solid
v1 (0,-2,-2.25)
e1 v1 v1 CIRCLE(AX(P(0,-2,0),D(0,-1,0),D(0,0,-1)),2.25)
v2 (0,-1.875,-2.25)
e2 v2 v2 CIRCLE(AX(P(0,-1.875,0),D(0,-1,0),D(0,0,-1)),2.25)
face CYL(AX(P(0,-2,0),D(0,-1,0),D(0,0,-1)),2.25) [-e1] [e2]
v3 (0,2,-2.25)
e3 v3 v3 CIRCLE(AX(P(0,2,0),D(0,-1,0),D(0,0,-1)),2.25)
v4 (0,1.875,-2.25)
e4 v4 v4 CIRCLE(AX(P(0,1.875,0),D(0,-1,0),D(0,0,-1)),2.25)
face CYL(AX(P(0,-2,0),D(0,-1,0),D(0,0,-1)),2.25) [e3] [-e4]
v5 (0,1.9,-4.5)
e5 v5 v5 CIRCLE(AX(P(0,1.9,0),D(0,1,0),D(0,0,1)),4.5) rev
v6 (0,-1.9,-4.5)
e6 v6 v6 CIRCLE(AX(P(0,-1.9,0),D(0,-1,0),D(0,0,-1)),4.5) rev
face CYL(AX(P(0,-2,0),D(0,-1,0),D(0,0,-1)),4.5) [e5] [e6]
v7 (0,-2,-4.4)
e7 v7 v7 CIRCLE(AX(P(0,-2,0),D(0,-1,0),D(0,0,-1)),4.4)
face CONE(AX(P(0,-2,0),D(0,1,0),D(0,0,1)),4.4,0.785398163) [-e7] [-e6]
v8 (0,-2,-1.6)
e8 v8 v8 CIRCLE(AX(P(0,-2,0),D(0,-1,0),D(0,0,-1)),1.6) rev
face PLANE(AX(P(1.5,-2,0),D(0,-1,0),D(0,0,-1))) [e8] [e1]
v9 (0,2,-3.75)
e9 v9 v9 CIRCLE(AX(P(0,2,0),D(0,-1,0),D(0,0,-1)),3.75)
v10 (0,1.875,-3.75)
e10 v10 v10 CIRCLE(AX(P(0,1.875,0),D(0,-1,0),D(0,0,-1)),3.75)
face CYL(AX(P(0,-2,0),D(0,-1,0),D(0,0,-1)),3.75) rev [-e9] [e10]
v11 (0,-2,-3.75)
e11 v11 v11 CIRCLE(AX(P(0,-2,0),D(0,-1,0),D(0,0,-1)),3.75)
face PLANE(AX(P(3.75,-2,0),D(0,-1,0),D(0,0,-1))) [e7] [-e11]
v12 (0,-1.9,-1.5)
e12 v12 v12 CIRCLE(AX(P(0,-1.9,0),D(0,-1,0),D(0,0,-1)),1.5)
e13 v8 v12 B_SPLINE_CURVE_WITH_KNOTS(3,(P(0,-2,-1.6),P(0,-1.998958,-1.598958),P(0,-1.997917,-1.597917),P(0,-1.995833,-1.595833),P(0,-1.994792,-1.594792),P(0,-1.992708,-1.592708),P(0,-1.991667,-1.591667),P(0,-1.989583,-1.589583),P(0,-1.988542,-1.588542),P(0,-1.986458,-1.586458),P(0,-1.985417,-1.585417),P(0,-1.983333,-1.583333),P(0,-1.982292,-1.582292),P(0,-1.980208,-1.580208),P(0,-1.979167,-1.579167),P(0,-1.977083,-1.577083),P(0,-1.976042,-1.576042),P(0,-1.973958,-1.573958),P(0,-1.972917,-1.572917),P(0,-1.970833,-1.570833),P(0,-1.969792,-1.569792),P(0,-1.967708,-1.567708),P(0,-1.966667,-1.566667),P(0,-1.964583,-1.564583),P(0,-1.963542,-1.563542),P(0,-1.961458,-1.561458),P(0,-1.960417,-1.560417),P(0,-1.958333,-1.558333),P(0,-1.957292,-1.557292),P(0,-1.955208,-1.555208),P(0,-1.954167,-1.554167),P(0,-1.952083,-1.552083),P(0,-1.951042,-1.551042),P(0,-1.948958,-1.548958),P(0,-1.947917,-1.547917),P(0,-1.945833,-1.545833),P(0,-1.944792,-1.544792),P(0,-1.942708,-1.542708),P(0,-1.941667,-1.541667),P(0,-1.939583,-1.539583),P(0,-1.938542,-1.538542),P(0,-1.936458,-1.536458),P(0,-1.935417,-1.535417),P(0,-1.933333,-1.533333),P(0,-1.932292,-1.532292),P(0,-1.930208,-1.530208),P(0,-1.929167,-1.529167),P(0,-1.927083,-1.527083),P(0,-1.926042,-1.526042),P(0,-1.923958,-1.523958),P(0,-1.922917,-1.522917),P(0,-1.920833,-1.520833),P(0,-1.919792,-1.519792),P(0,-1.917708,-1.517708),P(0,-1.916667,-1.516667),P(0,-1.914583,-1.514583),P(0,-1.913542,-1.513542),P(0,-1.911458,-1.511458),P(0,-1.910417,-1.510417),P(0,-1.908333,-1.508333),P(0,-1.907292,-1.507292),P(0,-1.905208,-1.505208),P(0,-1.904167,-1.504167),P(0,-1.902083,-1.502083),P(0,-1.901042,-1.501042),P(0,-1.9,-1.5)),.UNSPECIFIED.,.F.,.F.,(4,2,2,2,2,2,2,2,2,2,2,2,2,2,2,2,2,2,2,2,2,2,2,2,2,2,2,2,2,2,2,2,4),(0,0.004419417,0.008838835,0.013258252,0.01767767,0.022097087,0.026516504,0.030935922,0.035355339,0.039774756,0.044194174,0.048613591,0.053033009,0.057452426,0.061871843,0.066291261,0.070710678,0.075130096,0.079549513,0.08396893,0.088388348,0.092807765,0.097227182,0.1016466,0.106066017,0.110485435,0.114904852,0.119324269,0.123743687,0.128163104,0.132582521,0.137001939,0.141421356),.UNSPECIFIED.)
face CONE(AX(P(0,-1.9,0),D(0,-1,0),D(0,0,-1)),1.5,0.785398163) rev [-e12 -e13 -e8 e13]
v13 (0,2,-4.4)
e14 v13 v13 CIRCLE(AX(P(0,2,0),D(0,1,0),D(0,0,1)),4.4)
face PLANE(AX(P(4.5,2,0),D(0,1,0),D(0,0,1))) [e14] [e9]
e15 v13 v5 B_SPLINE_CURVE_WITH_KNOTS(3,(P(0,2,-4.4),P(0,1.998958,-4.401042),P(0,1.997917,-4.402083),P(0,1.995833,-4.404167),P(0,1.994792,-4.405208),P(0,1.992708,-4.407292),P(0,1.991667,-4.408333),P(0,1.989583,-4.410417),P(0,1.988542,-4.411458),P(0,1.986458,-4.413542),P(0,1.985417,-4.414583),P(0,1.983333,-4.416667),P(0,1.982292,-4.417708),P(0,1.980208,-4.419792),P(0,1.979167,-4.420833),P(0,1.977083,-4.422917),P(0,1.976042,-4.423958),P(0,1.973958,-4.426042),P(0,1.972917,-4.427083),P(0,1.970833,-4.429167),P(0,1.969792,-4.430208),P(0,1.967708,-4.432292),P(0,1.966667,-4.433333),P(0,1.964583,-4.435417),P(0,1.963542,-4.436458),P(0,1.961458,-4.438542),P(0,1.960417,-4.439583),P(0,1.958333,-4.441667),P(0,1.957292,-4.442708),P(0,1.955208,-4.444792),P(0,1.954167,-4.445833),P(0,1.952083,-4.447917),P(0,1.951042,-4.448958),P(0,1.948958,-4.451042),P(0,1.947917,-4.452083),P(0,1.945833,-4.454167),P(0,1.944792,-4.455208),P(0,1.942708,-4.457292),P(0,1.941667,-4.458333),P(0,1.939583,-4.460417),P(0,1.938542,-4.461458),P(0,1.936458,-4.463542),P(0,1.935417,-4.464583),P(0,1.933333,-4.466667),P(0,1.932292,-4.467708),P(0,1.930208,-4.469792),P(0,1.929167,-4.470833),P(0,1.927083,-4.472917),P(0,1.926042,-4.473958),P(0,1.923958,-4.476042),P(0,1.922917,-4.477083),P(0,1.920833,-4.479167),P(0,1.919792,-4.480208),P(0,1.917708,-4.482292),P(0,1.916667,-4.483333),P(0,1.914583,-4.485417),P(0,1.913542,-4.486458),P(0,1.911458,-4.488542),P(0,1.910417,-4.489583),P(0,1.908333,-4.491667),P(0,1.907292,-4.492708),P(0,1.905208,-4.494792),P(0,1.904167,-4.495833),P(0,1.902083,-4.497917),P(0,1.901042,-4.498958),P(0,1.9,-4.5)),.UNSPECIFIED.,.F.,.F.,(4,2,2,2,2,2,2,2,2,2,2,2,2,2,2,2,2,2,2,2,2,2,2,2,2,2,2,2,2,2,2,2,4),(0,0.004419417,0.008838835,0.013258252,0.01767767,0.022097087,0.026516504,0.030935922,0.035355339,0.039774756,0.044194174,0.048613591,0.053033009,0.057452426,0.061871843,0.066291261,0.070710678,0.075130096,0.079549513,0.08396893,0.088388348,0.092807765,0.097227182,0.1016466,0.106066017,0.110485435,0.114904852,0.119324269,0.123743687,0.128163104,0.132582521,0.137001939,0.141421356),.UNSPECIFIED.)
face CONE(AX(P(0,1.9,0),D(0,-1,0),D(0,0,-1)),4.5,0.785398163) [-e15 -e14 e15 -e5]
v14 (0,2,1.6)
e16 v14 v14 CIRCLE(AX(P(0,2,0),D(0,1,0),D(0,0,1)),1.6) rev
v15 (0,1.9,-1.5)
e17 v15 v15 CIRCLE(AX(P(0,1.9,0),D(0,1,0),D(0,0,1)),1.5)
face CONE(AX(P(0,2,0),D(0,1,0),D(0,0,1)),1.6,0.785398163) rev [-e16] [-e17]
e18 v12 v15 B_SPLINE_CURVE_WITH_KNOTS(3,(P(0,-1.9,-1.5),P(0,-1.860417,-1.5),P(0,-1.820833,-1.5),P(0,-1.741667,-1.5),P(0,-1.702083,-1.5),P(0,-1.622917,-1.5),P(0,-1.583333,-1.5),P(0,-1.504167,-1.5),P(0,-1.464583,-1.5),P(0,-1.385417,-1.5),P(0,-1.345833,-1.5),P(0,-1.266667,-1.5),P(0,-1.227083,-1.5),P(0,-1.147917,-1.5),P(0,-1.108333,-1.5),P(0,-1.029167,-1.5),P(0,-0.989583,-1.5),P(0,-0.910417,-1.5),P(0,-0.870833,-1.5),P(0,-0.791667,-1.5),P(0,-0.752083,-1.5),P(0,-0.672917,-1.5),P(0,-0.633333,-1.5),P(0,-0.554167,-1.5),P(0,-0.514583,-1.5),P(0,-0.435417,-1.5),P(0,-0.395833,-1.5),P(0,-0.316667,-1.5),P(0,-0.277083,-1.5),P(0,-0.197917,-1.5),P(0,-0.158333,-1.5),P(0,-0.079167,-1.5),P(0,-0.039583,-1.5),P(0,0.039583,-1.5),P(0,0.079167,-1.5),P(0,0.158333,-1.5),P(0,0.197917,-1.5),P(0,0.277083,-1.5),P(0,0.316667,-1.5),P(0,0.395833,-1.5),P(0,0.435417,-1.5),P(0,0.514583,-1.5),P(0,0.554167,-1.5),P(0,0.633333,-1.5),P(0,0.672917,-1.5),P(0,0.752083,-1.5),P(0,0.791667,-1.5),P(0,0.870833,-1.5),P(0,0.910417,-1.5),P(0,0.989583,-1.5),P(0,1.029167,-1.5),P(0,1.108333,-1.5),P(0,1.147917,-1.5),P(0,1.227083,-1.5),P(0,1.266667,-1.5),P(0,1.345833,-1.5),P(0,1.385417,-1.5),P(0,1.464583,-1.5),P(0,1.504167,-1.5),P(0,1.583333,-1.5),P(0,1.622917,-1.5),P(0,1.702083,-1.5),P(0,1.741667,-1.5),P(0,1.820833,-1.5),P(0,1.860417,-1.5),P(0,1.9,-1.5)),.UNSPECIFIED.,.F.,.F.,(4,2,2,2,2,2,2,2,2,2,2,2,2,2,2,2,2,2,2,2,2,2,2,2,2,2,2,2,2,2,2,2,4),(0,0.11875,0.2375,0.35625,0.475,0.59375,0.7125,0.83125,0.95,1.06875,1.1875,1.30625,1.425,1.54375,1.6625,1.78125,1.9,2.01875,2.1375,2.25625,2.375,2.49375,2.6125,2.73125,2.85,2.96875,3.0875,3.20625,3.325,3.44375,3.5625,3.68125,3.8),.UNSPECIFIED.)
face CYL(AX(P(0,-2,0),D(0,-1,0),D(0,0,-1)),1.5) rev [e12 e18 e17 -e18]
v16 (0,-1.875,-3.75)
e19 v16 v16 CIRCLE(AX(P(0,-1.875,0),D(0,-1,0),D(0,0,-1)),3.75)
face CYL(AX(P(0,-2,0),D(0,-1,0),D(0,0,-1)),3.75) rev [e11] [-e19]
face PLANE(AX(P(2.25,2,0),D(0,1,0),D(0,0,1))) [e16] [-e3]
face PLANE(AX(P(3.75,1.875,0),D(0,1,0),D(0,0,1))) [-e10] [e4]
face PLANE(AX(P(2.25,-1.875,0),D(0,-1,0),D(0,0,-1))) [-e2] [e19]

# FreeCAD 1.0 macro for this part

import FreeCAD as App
import Part
import Sketcher


def edges_at(feature, points):
    """Names of the edges that pass closest to the given points."""
    edges = feature.Shape.Edges
    near = lambda p: min(range(len(edges)), key=lambda i: edges[i].distToShape(Part.Vertex(*p))[0])
    return sorted({f"Edge{near(p) + 1}" for p in points})

doc = App.newDocument("Part")
params = doc.addObject("Spreadsheet::Sheet", "Params")
for row, (alias, value) in enumerate([
    ("sketch1_height", "4 mm"),
    ("sketch1_width", "1.5 mm"),
    ("revolution_angle", "360 deg"),
    ("chamfer_size", "0.1 mm"),
], start=1):
    params.set(f"A{row}", alias)
    params.set(f"B{row}", "=" + value)
    params.setAlias(f"B{row}", alias)

body = doc.addObject("PartDesign::Body", "Body")

sketch1 = body.newObject("Sketcher::SketchObject", "Sketch")
sketch1.AttachmentSupport = (doc.getObject("XY_Plane"), [""])
sketch1.MapMode = "FlatFace"
sketch1.addGeometry([
    Part.LineSegment(App.Vector(1.5, 2, 0), App.Vector(1.5, -2, 0)),
    Part.LineSegment(App.Vector(1.5, -2, 0), App.Vector(2.25, -2, 0)),
    Part.LineSegment(App.Vector(2.25, -2, 0), App.Vector(2.25, -1.88, 0)),
    Part.LineSegment(App.Vector(2.25, -1.88, 0), App.Vector(3.75, -1.88, 0)),
    Part.LineSegment(App.Vector(3.75, -1.88, 0), App.Vector(3.75, -2, 0)),
    Part.LineSegment(App.Vector(3.75, -2, 0), App.Vector(4.5, -2, 0)),
    Part.LineSegment(App.Vector(4.5, -2, 0), App.Vector(4.5, 2, 0)),
    Part.LineSegment(App.Vector(4.5, 2, 0), App.Vector(3.75, 2, 0)),
    Part.LineSegment(App.Vector(3.75, 2, 0), App.Vector(3.75, 1.88, 0)),
    Part.LineSegment(App.Vector(3.75, 1.88, 0), App.Vector(2.25, 1.88, 0)),
    Part.LineSegment(App.Vector(2.25, 1.88, 0), App.Vector(2.25, 2, 0)),
    Part.LineSegment(App.Vector(2.25, 2, 0), App.Vector(1.5, 2, 0)),
], False)
sketch1.addConstraint([
    Sketcher.Constraint("Coincident", 0, 2, 1, 1),
    Sketcher.Constraint("Coincident", 1, 2, 2, 1),
    Sketcher.Constraint("Coincident", 2, 2, 3, 1),
    Sketcher.Constraint("Coincident", 3, 2, 4, 1),
    Sketcher.Constraint("Coincident", 4, 2, 5, 1),
    Sketcher.Constraint("Coincident", 5, 2, 6, 1),
    Sketcher.Constraint("Coincident", 6, 2, 7, 1),
    Sketcher.Constraint("Coincident", 7, 2, 8, 1),
    Sketcher.Constraint("Coincident", 8, 2, 9, 1),
    Sketcher.Constraint("Coincident", 9, 2, 10, 1),
    Sketcher.Constraint("Coincident", 10, 2, 11, 1),
    Sketcher.Constraint("Coincident", 11, 2, 0, 1),
    Sketcher.Constraint("Vertical", 0),
    Sketcher.Constraint("Horizontal", 1),
    Sketcher.Constraint("Vertical", 2),
    Sketcher.Constraint("Horizontal", 3),
    Sketcher.Constraint("Vertical", 4),
    Sketcher.Constraint("Horizontal", 5),
    Sketcher.Constraint("Vertical", 6),
    Sketcher.Constraint("Horizontal", 7),
    Sketcher.Constraint("Vertical", 8),
    Sketcher.Constraint("Horizontal", 9),
    Sketcher.Constraint("Vertical", 10),
    Sketcher.Constraint("Horizontal", 11),
    Sketcher.Constraint("Symmetric", 4, 2, 7, 2, -1),
    Sketcher.Constraint("Symmetric", 2, 2, 9, 2, -1),
    Sketcher.Constraint("Horizontal", 1, 2, 4, 2),
    Sketcher.Constraint("Horizontal", 7, 2, 10, 2),
    Sketcher.Constraint("Equal", 1, 5),
    Sketcher.Constraint("DistanceY", 0, 2, 0, 1, 4.0),
    Sketcher.Constraint("DistanceX", 3, 1, 3, 2, 1.5),
    Sketcher.Constraint("DistanceX", 0, 2, 5, 2, 3.0),
    Sketcher.Constraint("DistanceX", -1, 1, 0, 2, 1.5),
    Sketcher.Constraint("DistanceY", 2, 1, 2, 2, 0.125),
])
sketch1.setExpression("Constraints[29]", "Params.sketch1_height")
sketch1.setExpression("Constraints[30]", "Params.sketch1_width")
revolution = body.newObject("PartDesign::Revolution", "Revolution")
revolution.Profile = sketch1
revolution.ReferenceAxis = (sketch1, ["V_Axis"])
revolution.setExpression("Angle", "Params.revolution_angle")
doc.recompute()

chamfer = body.newObject("PartDesign::Chamfer", "Chamfer")
chamfer.Base = (revolution, edges_at(revolution, [
    (0, 2, 4.5),
    (0, -2, 4.5),
    (0, -2, 1.5),
    (0, 2, 1.5),
]))
chamfer.setExpression("Size", "Params.chamfer_size")

doc.recompute()
